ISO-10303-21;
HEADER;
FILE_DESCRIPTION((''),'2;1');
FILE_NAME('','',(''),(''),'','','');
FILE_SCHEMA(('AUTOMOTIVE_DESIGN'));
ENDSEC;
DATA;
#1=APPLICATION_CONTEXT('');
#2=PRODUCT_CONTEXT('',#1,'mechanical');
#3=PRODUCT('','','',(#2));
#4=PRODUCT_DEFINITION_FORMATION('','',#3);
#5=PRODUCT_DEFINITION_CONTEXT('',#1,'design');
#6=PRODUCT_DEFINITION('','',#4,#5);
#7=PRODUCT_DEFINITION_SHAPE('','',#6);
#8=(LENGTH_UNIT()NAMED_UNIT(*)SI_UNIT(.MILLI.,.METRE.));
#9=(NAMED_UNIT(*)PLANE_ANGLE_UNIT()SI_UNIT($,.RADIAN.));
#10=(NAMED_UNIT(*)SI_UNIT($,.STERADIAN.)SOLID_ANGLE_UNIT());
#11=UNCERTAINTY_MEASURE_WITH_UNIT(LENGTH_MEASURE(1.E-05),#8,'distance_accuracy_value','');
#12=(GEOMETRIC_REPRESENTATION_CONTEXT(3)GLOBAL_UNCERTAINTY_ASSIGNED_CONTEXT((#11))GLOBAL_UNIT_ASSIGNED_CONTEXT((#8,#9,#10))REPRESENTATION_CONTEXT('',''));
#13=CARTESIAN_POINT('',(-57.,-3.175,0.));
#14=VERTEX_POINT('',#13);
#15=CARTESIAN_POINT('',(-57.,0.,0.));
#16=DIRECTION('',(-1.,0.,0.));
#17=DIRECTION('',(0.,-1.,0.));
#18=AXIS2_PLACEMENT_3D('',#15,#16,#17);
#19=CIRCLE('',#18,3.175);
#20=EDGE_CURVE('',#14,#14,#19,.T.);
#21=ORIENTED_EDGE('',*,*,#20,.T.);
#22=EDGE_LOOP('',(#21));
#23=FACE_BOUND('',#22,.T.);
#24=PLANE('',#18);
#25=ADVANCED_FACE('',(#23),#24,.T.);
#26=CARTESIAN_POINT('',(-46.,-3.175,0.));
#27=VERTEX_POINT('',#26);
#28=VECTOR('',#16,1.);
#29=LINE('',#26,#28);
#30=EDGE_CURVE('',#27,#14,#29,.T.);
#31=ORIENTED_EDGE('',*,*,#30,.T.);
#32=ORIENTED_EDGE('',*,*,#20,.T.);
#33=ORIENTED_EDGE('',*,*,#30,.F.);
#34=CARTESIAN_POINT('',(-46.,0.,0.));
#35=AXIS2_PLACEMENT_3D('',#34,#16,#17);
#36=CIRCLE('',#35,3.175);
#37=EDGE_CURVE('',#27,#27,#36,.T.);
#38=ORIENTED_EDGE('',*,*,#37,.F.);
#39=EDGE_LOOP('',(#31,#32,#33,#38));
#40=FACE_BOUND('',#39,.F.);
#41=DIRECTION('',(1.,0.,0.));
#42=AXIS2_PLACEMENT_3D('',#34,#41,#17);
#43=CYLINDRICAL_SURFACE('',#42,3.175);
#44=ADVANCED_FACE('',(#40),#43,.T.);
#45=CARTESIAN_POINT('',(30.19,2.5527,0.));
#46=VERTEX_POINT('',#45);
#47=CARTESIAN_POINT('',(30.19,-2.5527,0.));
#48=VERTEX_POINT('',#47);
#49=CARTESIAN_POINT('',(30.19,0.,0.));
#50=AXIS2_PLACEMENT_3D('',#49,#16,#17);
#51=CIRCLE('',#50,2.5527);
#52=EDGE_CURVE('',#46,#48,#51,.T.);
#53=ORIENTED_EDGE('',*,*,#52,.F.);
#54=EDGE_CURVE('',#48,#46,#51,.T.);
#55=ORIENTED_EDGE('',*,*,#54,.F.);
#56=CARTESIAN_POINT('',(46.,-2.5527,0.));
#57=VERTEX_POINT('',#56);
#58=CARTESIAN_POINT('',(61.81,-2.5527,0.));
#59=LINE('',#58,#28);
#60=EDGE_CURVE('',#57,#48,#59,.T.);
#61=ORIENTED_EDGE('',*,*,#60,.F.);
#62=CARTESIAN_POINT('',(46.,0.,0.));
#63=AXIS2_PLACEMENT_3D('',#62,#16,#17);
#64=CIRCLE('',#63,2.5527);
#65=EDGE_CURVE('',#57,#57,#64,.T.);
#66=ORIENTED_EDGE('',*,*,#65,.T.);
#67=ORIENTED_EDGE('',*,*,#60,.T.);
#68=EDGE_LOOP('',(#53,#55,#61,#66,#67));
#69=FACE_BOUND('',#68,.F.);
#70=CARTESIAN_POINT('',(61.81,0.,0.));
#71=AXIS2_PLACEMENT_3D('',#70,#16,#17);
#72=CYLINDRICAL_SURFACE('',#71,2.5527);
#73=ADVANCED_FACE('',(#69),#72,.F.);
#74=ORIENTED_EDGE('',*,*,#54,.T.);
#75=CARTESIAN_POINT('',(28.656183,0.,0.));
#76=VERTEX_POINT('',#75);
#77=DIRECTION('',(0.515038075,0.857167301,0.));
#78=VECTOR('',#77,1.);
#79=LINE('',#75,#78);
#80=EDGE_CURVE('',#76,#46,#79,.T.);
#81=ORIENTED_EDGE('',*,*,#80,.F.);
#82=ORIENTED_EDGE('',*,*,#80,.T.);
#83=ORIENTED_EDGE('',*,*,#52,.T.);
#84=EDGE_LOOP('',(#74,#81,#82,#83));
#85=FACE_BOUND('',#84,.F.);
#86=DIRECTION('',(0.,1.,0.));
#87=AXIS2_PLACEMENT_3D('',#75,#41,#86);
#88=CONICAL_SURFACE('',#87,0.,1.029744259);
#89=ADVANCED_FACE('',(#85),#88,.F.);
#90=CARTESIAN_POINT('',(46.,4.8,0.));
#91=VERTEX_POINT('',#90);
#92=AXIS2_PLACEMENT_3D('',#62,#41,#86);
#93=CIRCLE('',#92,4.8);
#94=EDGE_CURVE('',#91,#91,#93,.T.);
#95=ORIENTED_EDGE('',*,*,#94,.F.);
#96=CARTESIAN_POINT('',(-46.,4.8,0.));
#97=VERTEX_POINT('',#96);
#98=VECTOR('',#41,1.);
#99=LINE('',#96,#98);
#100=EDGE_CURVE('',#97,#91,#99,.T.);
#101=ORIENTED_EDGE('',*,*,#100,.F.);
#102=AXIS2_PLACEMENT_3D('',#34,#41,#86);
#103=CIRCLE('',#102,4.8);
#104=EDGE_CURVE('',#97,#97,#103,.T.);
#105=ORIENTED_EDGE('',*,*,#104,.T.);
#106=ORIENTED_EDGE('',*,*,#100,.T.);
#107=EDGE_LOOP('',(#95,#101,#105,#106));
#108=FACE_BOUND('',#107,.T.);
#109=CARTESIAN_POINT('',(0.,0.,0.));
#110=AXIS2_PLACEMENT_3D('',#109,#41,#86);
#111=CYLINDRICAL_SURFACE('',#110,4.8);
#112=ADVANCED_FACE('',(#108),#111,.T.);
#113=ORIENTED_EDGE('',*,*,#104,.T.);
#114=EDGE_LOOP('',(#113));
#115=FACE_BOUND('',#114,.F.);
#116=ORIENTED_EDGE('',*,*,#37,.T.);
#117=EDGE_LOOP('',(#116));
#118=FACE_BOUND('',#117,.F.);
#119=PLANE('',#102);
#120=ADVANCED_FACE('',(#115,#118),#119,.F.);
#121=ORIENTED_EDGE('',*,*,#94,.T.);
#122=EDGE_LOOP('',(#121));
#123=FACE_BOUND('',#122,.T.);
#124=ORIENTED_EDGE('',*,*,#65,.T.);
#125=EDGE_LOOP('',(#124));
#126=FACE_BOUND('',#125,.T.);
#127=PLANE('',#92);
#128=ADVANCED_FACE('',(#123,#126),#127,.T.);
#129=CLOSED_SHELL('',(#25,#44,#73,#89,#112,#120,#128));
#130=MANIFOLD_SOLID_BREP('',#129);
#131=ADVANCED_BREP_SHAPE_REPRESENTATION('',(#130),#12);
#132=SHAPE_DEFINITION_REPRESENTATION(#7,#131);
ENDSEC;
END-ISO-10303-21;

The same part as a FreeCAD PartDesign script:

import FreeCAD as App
import Part
import Sketcher

doc = App.newDocument("Part")
body = doc.addObject("PartDesign::Body", "Body")

# Sketch on YZ plane
sketch1 = doc.addObject("Sketcher::SketchObject", "Sketch")
body.addObject(sketch1)
sketch1.AttachmentSupport = (doc.YZ_Plane, [""])
sketch1.MapMode = "FlatFace"
sketch1.addGeometry(Part.Circle(App.Vector(0, 0, 0), App.Vector(0, 0, 1), 4.8), False)
sketch1.addConstraint(Sketcher.Constraint("Coincident", 0, 3, -1, 1))
sketch1.addConstraint(Sketcher.Constraint("Diameter", 0, 9.6))
pad1 = doc.addObject("PartDesign::Pad", "Pad")
body.addObject(pad1)
pad1.Profile = sketch1
pad1.Length = 92
pad1.Midplane = True

# Sketch on YZ plane
sketch2 = doc.addObject("Sketcher::SketchObject", "Sketch001")
body.addObject(sketch2)
sketch2.AttachmentSupport = (doc.YZ_Plane, [""])
sketch2.MapMode = "FlatFace"
sketch2.AttachmentOffset = App.Placement(App.Vector(0, 0, 46), App.Rotation())
sketch2.addGeometry(Part.Circle(App.Vector(0, 0, 0), App.Vector(0, 0, 1), 2.5527), False)
sketch2.addConstraint(Sketcher.Constraint("Coincident", 0, 3, -1, 1))
sketch2.addConstraint(Sketcher.Constraint("Diameter", 0, 5.1054))
doc.recompute()
hole = doc.addObject("PartDesign::Hole", "Hole")
body.addObject(hole)
hole.Profile = sketch2
hole.ThreadType = "None"
hole.Diameter = 5.1054
hole.DepthType = "Dimension"
hole.Depth = 15.81
hole.DrillPoint = "Angled"
hole.DrillPointAngle = 118

# Sketch on YZ plane
sketch3 = doc.addObject("Sketcher::SketchObject", "Sketch002")
body.addObject(sketch3)
sketch3.AttachmentSupport = (doc.YZ_Plane, [""])
sketch3.MapMode = "FlatFace"
sketch3.AttachmentOffset = App.Placement(App.Vector(0, 0, -46), App.Rotation())
sketch3.addGeometry(Part.Circle(App.Vector(0, 0, 0), App.Vector(0, 0, 1), 3.175), False)
sketch3.addConstraint(Sketcher.Constraint("Coincident", 0, 3, -1, 1))
sketch3.addConstraint(Sketcher.Constraint("Diameter", 0, 6.35))
pad2 = doc.addObject("PartDesign::Pad", "Pad001")
body.addObject(pad2)
pad2.Profile = sketch3
pad2.Length = 11
pad2.Reversed = True

doc.recompute()
